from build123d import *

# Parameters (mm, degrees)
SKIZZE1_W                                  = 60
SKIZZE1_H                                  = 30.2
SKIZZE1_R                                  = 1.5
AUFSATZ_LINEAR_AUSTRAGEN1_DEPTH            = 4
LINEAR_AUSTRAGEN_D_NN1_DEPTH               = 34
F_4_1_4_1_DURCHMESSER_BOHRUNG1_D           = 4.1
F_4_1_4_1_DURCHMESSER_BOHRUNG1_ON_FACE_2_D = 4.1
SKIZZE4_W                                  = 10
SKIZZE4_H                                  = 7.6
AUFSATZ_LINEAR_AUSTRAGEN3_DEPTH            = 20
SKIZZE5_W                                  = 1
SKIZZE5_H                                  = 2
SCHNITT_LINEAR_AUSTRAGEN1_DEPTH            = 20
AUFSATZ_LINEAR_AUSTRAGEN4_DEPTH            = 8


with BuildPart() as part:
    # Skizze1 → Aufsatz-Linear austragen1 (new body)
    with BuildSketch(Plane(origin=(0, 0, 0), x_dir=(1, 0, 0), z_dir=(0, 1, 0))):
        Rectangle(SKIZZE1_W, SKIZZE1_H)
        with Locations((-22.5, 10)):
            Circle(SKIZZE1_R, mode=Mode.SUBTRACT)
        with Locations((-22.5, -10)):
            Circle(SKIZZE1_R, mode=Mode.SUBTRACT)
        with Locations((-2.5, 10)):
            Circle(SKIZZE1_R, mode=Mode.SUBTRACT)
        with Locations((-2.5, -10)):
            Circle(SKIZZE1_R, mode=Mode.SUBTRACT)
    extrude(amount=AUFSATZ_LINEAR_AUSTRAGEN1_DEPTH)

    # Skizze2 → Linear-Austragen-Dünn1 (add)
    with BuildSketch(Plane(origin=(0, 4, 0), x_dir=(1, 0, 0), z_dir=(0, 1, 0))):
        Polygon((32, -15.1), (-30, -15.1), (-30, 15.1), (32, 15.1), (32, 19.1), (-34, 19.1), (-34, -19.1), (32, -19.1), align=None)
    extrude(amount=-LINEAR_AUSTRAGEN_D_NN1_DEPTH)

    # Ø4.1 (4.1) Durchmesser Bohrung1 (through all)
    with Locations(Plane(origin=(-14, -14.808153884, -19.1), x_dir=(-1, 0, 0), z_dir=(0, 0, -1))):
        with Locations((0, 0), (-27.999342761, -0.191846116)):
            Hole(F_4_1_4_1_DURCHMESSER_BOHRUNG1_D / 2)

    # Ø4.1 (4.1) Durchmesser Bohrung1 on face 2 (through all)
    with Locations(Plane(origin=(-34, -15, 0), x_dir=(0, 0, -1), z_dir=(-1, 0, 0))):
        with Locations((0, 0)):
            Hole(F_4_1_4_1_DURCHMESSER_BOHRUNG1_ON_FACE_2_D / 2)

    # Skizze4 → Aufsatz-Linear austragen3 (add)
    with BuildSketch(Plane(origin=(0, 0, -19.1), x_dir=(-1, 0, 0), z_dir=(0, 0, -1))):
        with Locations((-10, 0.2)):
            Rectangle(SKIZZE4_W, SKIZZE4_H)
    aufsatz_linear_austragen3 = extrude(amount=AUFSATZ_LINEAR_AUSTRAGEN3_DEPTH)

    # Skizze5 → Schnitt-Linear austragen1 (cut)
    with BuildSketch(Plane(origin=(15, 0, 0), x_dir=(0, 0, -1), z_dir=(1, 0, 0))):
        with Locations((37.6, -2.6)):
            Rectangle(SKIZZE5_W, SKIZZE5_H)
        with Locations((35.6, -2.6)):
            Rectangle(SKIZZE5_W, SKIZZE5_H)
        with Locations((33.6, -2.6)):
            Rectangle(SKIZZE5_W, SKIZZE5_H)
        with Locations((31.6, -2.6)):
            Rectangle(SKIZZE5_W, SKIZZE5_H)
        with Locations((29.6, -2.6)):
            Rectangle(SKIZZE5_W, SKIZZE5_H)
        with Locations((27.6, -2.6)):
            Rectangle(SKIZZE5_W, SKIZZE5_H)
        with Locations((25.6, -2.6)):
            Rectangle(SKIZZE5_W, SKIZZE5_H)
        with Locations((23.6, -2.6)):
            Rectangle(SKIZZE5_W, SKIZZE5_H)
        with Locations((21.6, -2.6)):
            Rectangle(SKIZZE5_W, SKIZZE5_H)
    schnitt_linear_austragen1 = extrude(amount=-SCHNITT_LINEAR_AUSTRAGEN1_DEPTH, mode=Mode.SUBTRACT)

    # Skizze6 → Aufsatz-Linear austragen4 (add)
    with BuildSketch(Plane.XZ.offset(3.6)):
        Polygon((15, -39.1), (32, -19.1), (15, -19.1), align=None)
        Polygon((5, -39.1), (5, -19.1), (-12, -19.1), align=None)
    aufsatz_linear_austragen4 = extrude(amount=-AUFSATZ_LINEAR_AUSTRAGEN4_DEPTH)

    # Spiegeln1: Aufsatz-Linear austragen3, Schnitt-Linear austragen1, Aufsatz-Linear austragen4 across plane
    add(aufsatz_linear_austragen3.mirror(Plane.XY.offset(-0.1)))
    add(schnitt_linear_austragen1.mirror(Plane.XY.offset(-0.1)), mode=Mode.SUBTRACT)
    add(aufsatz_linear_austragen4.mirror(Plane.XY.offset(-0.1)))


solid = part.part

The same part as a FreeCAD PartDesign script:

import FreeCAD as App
import Part
import Sketcher
from FreeCAD import Vector


def add_polygon(sketch, points):
    """Adds a closed chain of lines whose ends are joined by coincident constraints."""
    first, n = sketch.GeometryCount, len(points)
    for a, b in zip(points, points[1:] + points[:1]):
        sketch.addGeometry(Part.LineSegment(App.Vector(*a, 0), App.Vector(*b, 0)), False)
    for i in range(n):
        sketch.addConstraint(Sketcher.Constraint("Coincident", first + i, 2, first + (i + 1) % n, 1))

doc = App.newDocument("Part")
params = doc.addObject("Spreadsheet::Sheet", "Params")
for row, (alias, value) in enumerate([
    ("sketch1_diameter", "3 mm"),
    ("sketch1_width", "60 mm"),
    ("sketch1_height", "30.2 mm"),
    ("pad1_length", "4 mm"),
    ("sketch2_width", "62 mm"),
    ("sketch2_width2", "66 mm"),
    ("sketch2_height", "4 mm"),
    ("sketch2_height2", "30.2 mm"),
    ("pad2_length", "34 mm"),
    ("sketch3_diameter", "4.1 mm"),
    ("hole_diameter", "4.1 mm"),
    ("sketch4_diameter", "4.1 mm"),
    ("hole2_diameter", "4.1 mm"),
    ("sketch5_width", "10 mm"),
    ("sketch5_height", "7.6 mm"),
    ("pad3_length", "20 mm"),
    ("sketch6_width", "2 mm"),
    ("sketch6_height", "1 mm"),
    ("pocket1_length", "20 mm"),
    ("sketch7_width", "17 mm"),
    ("sketch7_height", "20 mm"),
    ("pad4_length", "8 mm"),
], start=1):
    params.set(f"A{row}", alias)
    params.set(f"B{row}", "=" + value)
    params.setAlias(f"B{row}", alias)

body = doc.addObject("PartDesign::Body", "Body")

# Sketch on XZ plane
sketch1 = doc.addObject("Sketcher::SketchObject", "Sketch")
body.addObject(sketch1)
sketch1.AttachmentSupport = (doc.XZ_Plane, [""])
sketch1.MapMode = "FlatFace"
add_polygon(sketch1, [(-30, -15.1), (-30, 15.1), (30, 15.1), (30, -15.1)])  # lines 0-3
sketch1.addGeometry(Part.Circle(Vector(-22.5, 10, 0), Vector(0, 0, 1), 1.5), False)  # 4
sketch1.addGeometry(Part.Circle(Vector(-2.5, 10, 0), Vector(0, 0, 1), 1.5), False)  # 5
sketch1.addGeometry(Part.Circle(Vector(-22.5, -10, 0), Vector(0, 0, 1), 1.5), False)  # 6
sketch1.addGeometry(Part.Circle(Vector(-2.5, -10, 0), Vector(0, 0, 1), 1.5), False)  # 7
sketch1.addConstraint([
    Sketcher.Constraint("Vertical", 0),
    Sketcher.Constraint("Horizontal", 1),
    Sketcher.Constraint("Vertical", 2),
    Sketcher.Constraint("Horizontal", 3),
    Sketcher.Constraint("Equal", 4, 5),
    Sketcher.Constraint("Equal", 5, 6),
    Sketcher.Constraint("Equal", 6, 7),
    Sketcher.Constraint("Symmetric", 0, 2, 2, 2, -1, 1),
    Sketcher.Constraint("Symmetric", 4, 3, 6, 3, -1),
    Sketcher.Constraint("Symmetric", 5, 3, 7, 3, -1),
    Sketcher.Constraint("Horizontal", 4, 3, 5, 3),
    Sketcher.Constraint("Diameter", 4, 3.0),
    Sketcher.Constraint("DistanceX", 1, 1, 1, 2, 60.0),
    Sketcher.Constraint("DistanceY", 0, 1, 0, 2, 30.2),
    Sketcher.Constraint("DistanceY", -1, 1, 4, 3, 10.0),
    Sketcher.Constraint("DistanceX", 4, 3, 5, 3, 20.0),
    Sketcher.Constraint("DistanceX", 4, 3, -1, 1, 22.5),
])
sketch1.setExpression("Constraints[15]", "Params.sketch1_diameter")
sketch1.setExpression("Constraints[16]", "Params.sketch1_width")
sketch1.setExpression("Constraints[17]", "Params.sketch1_height")
pad1 = doc.addObject("PartDesign::Pad", "Pad")
body.addObject(pad1)
pad1.Profile = sketch1
pad1.setExpression("Length", "Params.pad1_length")
pad1.Reversed = True

# Sketch on XZ plane
sketch2 = doc.addObject("Sketcher::SketchObject", "Sketch001")
body.addObject(sketch2)
sketch2.AttachmentSupport = (doc.XZ_Plane, [""])
sketch2.MapMode = "FlatFace"
sketch2.AttachmentOffset = App.Placement(Vector(0, 0, -4), App.Rotation())
add_polygon(sketch2, [(32, 15.1), (-30, 15.1), (-30, -15.1), (32, -15.1), (32, -19.1), (-34, -19.1), (-34, 19.1), (32, 19.1)])  # lines 0-7
sketch2.addConstraint([
    Sketcher.Constraint("Horizontal", 0),
    Sketcher.Constraint("Vertical", 1),
    Sketcher.Constraint("Horizontal", 2),
    Sketcher.Constraint("Vertical", 3),
    Sketcher.Constraint("Horizontal", 4),
    Sketcher.Constraint("Vertical", 5),
    Sketcher.Constraint("Horizontal", 6),
    Sketcher.Constraint("Vertical", 7),
    Sketcher.Constraint("Symmetric", 3, 2, 6, 2, -1),
    Sketcher.Constraint("Equal", 3, 7),
    Sketcher.Constraint("DistanceX", 0, 2, 0, 1, 62.0),
    Sketcher.Constraint("DistanceX", 4, 2, 4, 1, 66.0),
    Sketcher.Constraint("DistanceY", 3, 2, 3, 1, 4.0),
    Sketcher.Constraint("DistanceY", 1, 2, 1, 1, 30.2),
    Sketcher.Constraint("DistanceX", 0, 2, -1, 1, 30.0),
])
sketch2.setExpression("Constraints[18]", "Params.sketch2_width")
sketch2.setExpression("Constraints[19]", "Params.sketch2_width2")
sketch2.setExpression("Constraints[20]", "Params.sketch2_height")
sketch2.setExpression("Constraints[21]", "Params.sketch2_height2")
pad2 = doc.addObject("PartDesign::Pad", "Pad001")
body.addObject(pad2)
pad2.Profile = sketch2
pad2.setExpression("Length", "Params.pad2_length")

# Sketch on XY plane
sketch3 = doc.addObject("Sketcher::SketchObject", "Sketch002")
body.addObject(sketch3)
sketch3.AttachmentSupport = (doc.XY_Plane, [""])
sketch3.MapMode = "FlatFace"
sketch3.AttachmentOffset = App.Placement(Vector(0, 0, -19.1), App.Rotation())
sketch3.addGeometry([
    Part.Circle(Vector(-14, -14.808154, 0), Vector(0, 0, 1), 2.05),
    Part.Circle(Vector(13.999343, -15, 0), Vector(0, 0, 1), 2.05),
], False)
sketch3.addConstraint([
    Sketcher.Constraint("Equal", 0, 1),
    Sketcher.Constraint("Diameter", 0, 4.1),
    Sketcher.Constraint("DistanceX", 0, 3, -1, 1, 14.0),
    Sketcher.Constraint("DistanceY", 1, 3, -1, 1, 15.0),
    Sketcher.Constraint("DistanceY", 0, 3, -1, 1, 14.808154),
    Sketcher.Constraint("DistanceX", -1, 1, 1, 3, 13.999343),
])
sketch3.setExpression("Constraints[1]", "Params.sketch3_diameter")
doc.recompute()
hole = doc.addObject("PartDesign::Hole", "Hole")
body.addObject(hole)
hole.Profile = sketch3
hole.ThreadType = "None"
hole.setExpression("Diameter", "Params.hole_diameter")
hole.DepthType = "ThroughAll"
hole.Reversed = True

# Sketch on YZ plane
sketch4 = doc.addObject("Sketcher::SketchObject", "Sketch003")
body.addObject(sketch4)
sketch4.AttachmentSupport = (doc.YZ_Plane, [""])
sketch4.MapMode = "FlatFace"
sketch4.AttachmentOffset = App.Placement(Vector(0, 0, -34), App.Rotation())
sketch4.addGeometry(Part.Circle(Vector(-15, 0, 0), Vector(0, 0, 1), 2.05), False)
sketch4.addConstraint([
    Sketcher.Constraint("PointOnObject", 0, 3, -1),
    Sketcher.Constraint("Diameter", 0, 4.1),
    Sketcher.Constraint("DistanceX", 0, 3, -1, 1, 15.0),
])
sketch4.setExpression("Constraints[1]", "Params.sketch4_diameter")
doc.recompute()
hole2 = doc.addObject("PartDesign::Hole", "Hole001")
body.addObject(hole2)
hole2.Profile = sketch4
hole2.ThreadType = "None"
hole2.setExpression("Diameter", "Params.hole2_diameter")
hole2.DepthType = "ThroughAll"
hole2.Reversed = True

# Sketch on XY plane
sketch5 = doc.addObject("Sketcher::SketchObject", "Sketch004")
body.addObject(sketch5)
sketch5.AttachmentSupport = (doc.XY_Plane, [""])
sketch5.MapMode = "FlatFace"
sketch5.AttachmentOffset = App.Placement(Vector(0, 0, -19.1), App.Rotation())
add_polygon(sketch5, [(15, 4), (15, -3.6), (5, -3.6), (5, 4)])  # lines 0-3
sketch5.addConstraint([
    Sketcher.Constraint("Vertical", 0),
    Sketcher.Constraint("Horizontal", 1),
    Sketcher.Constraint("Vertical", 2),
    Sketcher.Constraint("Horizontal", 3),
    Sketcher.Constraint("DistanceX", 1, 2, 1, 1, 10.0),
    Sketcher.Constraint("DistanceY", 0, 2, 0, 1, 7.6),
    Sketcher.Constraint("DistanceX", -1, 1, 0, 2, 15.0),
    Sketcher.Constraint("DistanceY", -1, 1, 2, 2, 4.0),
])
sketch5.setExpression("Constraints[8]", "Params.sketch5_width")
sketch5.setExpression("Constraints[9]", "Params.sketch5_height")
pad3 = doc.addObject("PartDesign::Pad", "Pad002")
body.addObject(pad3)
pad3.Profile = sketch5
pad3.setExpression("Length", "Params.pad3_length")
pad3.Reversed = True

# Sketch on YZ plane
sketch6 = doc.addObject("Sketcher::SketchObject", "Sketch005")
body.addObject(sketch6)
sketch6.AttachmentSupport = (doc.YZ_Plane, [""])
sketch6.MapMode = "FlatFace"
sketch6.AttachmentOffset = App.Placement(Vector(0, 0, 15), App.Rotation())
add_polygon(sketch6, [(-1.6, -37.1), (-3.6, -37.1), (-3.6, -38.1), (-1.6, -38.1)])  # lines 0-3
add_polygon(sketch6, [(-1.6, -35.1), (-3.6, -35.1), (-3.6, -36.1), (-1.6, -36.1)])  # lines 4-7
add_polygon(sketch6, [(-1.6, -33.1), (-3.6, -33.1), (-3.6, -34.1), (-1.6, -34.1)])  # lines 8-11
add_polygon(sketch6, [(-1.6, -31.1), (-3.6, -31.1), (-3.6, -32.1), (-1.6, -32.1)])  # lines 12-15
add_polygon(sketch6, [(-1.6, -29.1), (-3.6, -29.1), (-3.6, -30.1), (-1.6, -30.1)])  # lines 16-19
add_polygon(sketch6, [(-1.6, -27.1), (-3.6, -27.1), (-3.6, -28.1), (-1.6, -28.1)])  # lines 20-23
add_polygon(sketch6, [(-1.6, -25.1), (-3.6, -25.1), (-3.6, -26.1), (-1.6, -26.1)])  # lines 24-27
add_polygon(sketch6, [(-1.6, -23.1), (-3.6, -23.1), (-3.6, -24.1), (-1.6, -24.1)])  # lines 28-31
add_polygon(sketch6, [(-1.6, -21.1), (-3.6, -21.1), (-3.6, -22.1), (-1.6, -22.1)])  # lines 32-35
sketch6.addConstraint([
    Sketcher.Constraint("Horizontal", 0),
    Sketcher.Constraint("Vertical", 1),
    Sketcher.Constraint("Horizontal", 2),
    Sketcher.Constraint("Vertical", 3),
    Sketcher.Constraint("Horizontal", 4),
    Sketcher.Constraint("Vertical", 5),
    Sketcher.Constraint("Horizontal", 6),
    Sketcher.Constraint("Vertical", 7),
    Sketcher.Constraint("Horizontal", 8),
    Sketcher.Constraint("Vertical", 9),
    Sketcher.Constraint("Horizontal", 10),
    Sketcher.Constraint("Vertical", 11),
    Sketcher.Constraint("Horizontal", 12),
    Sketcher.Constraint("Vertical", 13),
    Sketcher.Constraint("Horizontal", 14),
    Sketcher.Constraint("Vertical", 15),
    Sketcher.Constraint("Horizontal", 16),
    Sketcher.Constraint("Vertical", 17),
    Sketcher.Constraint("Horizontal", 18),
    Sketcher.Constraint("Vertical", 19),
    Sketcher.Constraint("Horizontal", 20),
    Sketcher.Constraint("Vertical", 21),
    Sketcher.Constraint("Horizontal", 22),
    Sketcher.Constraint("Vertical", 23),
    Sketcher.Constraint("Horizontal", 24),
    Sketcher.Constraint("Vertical", 25),
    Sketcher.Constraint("Horizontal", 26),
    Sketcher.Constraint("Vertical", 27),
    Sketcher.Constraint("Horizontal", 28),
    Sketcher.Constraint("Vertical", 29),
    Sketcher.Constraint("Horizontal", 30),
    Sketcher.Constraint("Vertical", 31),
    Sketcher.Constraint("Horizontal", 32),
    Sketcher.Constraint("Vertical", 33),
    Sketcher.Constraint("Horizontal", 34),
    Sketcher.Constraint("Vertical", 35),
    Sketcher.Constraint("Vertical", 1, 2, 4, 2),
    Sketcher.Constraint("Vertical", 3, 2, 6, 2),
    Sketcher.Constraint("Vertical", 5, 2, 8, 2),
    Sketcher.Constraint("Vertical", 7, 2, 10, 2),
    Sketcher.Constraint("Vertical", 9, 2, 12, 2),
    Sketcher.Constraint("Vertical", 11, 2, 14, 2),
    Sketcher.Constraint("Vertical", 13, 2, 16, 2),
    Sketcher.Constraint("Vertical", 15, 2, 18, 2),
    Sketcher.Constraint("Vertical", 17, 2, 20, 2),
    Sketcher.Constraint("Vertical", 19, 2, 22, 2),
    Sketcher.Constraint("Vertical", 21, 2, 24, 2),
    Sketcher.Constraint("Vertical", 23, 2, 26, 2),
    Sketcher.Constraint("Vertical", 25, 2, 28, 2),
    Sketcher.Constraint("Vertical", 27, 2, 30, 2),
    Sketcher.Constraint("Vertical", 29, 2, 32, 2),
    Sketcher.Constraint("Vertical", 31, 2, 34, 2),
    Sketcher.Constraint("Equal", 3, 5),
    Sketcher.Constraint("Equal", 7, 9),
    Sketcher.Constraint("Equal", 11, 13),
    Sketcher.Constraint("Equal", 15, 17),
    Sketcher.Constraint("Equal", 19, 21),
    Sketcher.Constraint("Equal", 23, 25),
    Sketcher.Constraint("Equal", 27, 29),
    Sketcher.Constraint("Equal", 31, 33),
    Sketcher.Constraint("DistanceX", 0, 2, 0, 1, 2.0),
    Sketcher.Constraint("DistanceY", 1, 2, 1, 1, 1.0),
    Sketcher.Constraint("DistanceY", 0, 2, 4, 2, 2.0),
    Sketcher.Constraint("DistanceY", 4, 2, 8, 2, 2.0),
    Sketcher.Constraint("DistanceY", 8, 2, 12, 2, 2.0),
    Sketcher.Constraint("DistanceY", 12, 2, 16, 2, 2.0),
    Sketcher.Constraint("DistanceY", 16, 2, 20, 2, 2.0),
    Sketcher.Constraint("DistanceY", 20, 2, 24, 2, 2.0),
    Sketcher.Constraint("DistanceY", 24, 2, 28, 2, 2.0),
    Sketcher.Constraint("DistanceY", 28, 2, 32, 2, 2.0),
    Sketcher.Constraint("DistanceX", 0, 2, -1, 1, 3.6),
    Sketcher.Constraint("DistanceY", 0, 2, -1, 1, 37.1),
])
sketch6.setExpression("Constraints[96]", "Params.sketch6_width")
sketch6.setExpression("Constraints[97]", "Params.sketch6_height")
pocket1 = doc.addObject("PartDesign::Pocket", "Pocket")
body.addObject(pocket1)
pocket1.Profile = sketch6
pocket1.setExpression("Length", "Params.pocket1_length")

# Sketch on XZ plane
sketch7 = doc.addObject("Sketcher::SketchObject", "Sketch006")
body.addObject(sketch7)
sketch7.AttachmentSupport = (doc.XZ_Plane, [""])
sketch7.MapMode = "FlatFace"
sketch7.AttachmentOffset = App.Placement(Vector(0, 0, 3.6), App.Rotation())
add_polygon(sketch7, [(15, -39.1), (32, -19.1), (15, -19.1)])  # lines 0-2
add_polygon(sketch7, [(5, -39.1), (5, -19.1), (-12, -19.1)])  # lines 3-5
sketch7.addConstraint([
    Sketcher.Constraint("Horizontal", 1),
    Sketcher.Constraint("Vertical", 2),
    Sketcher.Constraint("Vertical", 3),
    Sketcher.Constraint("Horizontal", 4),
    Sketcher.Constraint("Horizontal", 1, 2, 3, 2),
    Sketcher.Constraint("Horizontal", 2, 2, 5, 2),
    Sketcher.Constraint("Equal", 1, 4),
    Sketcher.Constraint("DistanceX", 1, 2, 1, 1, 17.0),
    Sketcher.Constraint("DistanceY", 2, 2, 2, 1, 20.0),
    Sketcher.Constraint("DistanceX", -1, 1, 0, 2, 32.0),
    Sketcher.Constraint("DistanceX", -1, 1, 3, 2, 5.0),
    Sketcher.Constraint("DistanceY", 0, 2, -1, 1, 19.1),
])
sketch7.setExpression("Constraints[13]", "Params.sketch7_width")
sketch7.setExpression("Constraints[14]", "Params.sketch7_height")
pad4 = doc.addObject("PartDesign::Pad", "Pad003")
body.addObject(pad4)
pad4.Profile = sketch7
pad4.setExpression("Length", "Params.pad4_length")
pad4.Reversed = True
doc.recompute()

datumplane = doc.addObject("PartDesign::Plane", "DatumPlane")
body.addObject(datumplane)
datumplane.AttachmentSupport = (doc.XY_Plane, [""])
datumplane.MapMode = "FlatFace"
datumplane.AttachmentOffset = App.Placement(Vector(0, 0, -0.1), App.Rotation())
mirrored = doc.addObject("PartDesign::Mirrored", "Mirrored")
body.addObject(mirrored)
mirrored.Originals = [pad3, pocket1, pad4]
mirrored.MirrorPlane = (datumplane, [""])
body.Tip = mirrored

doc.recompute()
